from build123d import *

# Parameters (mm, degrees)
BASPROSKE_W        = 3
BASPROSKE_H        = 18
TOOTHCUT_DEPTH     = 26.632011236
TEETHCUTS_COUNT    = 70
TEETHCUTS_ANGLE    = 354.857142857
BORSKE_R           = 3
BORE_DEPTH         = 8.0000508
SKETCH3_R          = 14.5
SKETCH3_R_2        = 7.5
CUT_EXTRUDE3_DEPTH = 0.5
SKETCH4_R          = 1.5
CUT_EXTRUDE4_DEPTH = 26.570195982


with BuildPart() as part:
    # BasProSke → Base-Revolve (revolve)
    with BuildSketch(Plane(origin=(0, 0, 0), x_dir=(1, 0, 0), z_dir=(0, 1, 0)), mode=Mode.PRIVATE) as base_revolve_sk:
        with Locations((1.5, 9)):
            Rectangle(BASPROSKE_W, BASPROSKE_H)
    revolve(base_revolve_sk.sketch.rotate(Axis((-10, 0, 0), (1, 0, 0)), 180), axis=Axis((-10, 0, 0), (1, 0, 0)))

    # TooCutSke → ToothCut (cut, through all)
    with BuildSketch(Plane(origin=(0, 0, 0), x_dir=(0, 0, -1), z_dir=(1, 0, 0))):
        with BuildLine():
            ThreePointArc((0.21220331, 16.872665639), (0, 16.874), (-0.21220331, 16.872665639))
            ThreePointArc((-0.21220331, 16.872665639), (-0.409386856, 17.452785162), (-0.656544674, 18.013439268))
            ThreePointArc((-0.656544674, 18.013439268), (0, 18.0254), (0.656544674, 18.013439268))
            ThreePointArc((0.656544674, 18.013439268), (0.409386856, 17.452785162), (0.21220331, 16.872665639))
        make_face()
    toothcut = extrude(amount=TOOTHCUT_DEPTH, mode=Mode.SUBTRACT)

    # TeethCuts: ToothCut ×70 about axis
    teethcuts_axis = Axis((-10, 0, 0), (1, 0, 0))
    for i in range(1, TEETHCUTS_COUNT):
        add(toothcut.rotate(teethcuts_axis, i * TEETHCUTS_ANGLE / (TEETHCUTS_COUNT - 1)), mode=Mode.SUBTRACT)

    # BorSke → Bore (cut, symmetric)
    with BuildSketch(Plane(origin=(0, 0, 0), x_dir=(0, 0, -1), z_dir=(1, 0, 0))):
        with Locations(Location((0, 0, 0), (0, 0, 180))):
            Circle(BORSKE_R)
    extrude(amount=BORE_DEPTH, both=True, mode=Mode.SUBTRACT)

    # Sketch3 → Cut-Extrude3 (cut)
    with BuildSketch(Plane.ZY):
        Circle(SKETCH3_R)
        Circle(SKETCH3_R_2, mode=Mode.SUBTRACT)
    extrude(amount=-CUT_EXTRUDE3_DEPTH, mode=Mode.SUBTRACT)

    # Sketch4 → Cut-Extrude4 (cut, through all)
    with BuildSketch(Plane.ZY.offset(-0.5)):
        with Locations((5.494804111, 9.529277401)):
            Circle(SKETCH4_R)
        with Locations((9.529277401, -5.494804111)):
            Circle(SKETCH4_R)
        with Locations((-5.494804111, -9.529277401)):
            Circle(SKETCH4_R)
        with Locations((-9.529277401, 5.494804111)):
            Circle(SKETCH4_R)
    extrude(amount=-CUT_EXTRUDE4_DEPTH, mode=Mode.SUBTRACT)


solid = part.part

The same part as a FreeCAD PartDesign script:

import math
import FreeCAD as App
import Part
import Sketcher
Q = App.Units.Quantity


def add_polygon(sketch, points):
    """Adds a closed chain of lines whose ends are joined by coincident constraints."""
    first, n = sketch.GeometryCount, len(points)
    for a, b in zip(points, points[1:] + points[:1]):
        sketch.addGeometry(Part.LineSegment(App.Vector(*a, 0), App.Vector(*b, 0)), False)
    for i in range(n):
        sketch.addConstraint(Sketcher.Constraint("Coincident", first + i, 2, first + (i + 1) % n, 1))

doc = App.newDocument("Part")
body = doc.addObject("PartDesign::Body", "Body")

sketch1 = body.newObject("Sketcher::SketchObject", "Sketch")
sketch1.AttachmentSupport = (doc.getObject("XZ_Plane"), [""])
sketch1.MapMode = "FlatFace"
add_polygon(sketch1, [(0, -18), (0, 0), (3, 0), (3, -18)])
sketch1.addConstraint([
    Sketcher.Constraint("Vertical", 0),
    Sketcher.Constraint("Horizontal", 1),
    Sketcher.Constraint("Vertical", 2),
    Sketcher.Constraint("Horizontal", 3),
    Sketcher.Constraint("Coincident", 0, 2, -1, 1),
    Sketcher.Constraint("DistanceX", 1, 1, 1, 2, Q("3 mm")),
    Sketcher.Constraint("DistanceY", 0, 1, 0, 2, Q("18 mm")),
])
revolution = body.newObject("PartDesign::Revolution", "Revolution")
revolution.Profile = sketch1
revolution.ReferenceAxis = (sketch1, ["H_Axis"])
revolution.Angle = 360

sketch2 = body.newObject("Sketcher::SketchObject", "Sketch001")
sketch2.AttachmentSupport = (doc.getObject("YZ_Plane"), [""])
sketch2.MapMode = "FlatFace"
sketch2.addGeometry([
    Part.ArcOfCircle(Part.Circle(App.Vector(-0.000004, 0, 0), App.Vector(0, 0, 1), 16.874004), math.radians(-0.720557), math.radians(0.720557)),
    Part.ArcOfCircle(Part.Circle(App.Vector(14.912149, -6.932053, 0), App.Vector(0, 0, 1), 7), math.radians(63.701904), math.radians(73.735394)),
    Part.ArcOfCircle(Part.Circle(App.Vector(0, 0, 0), App.Vector(0, 0, 1), 18.0254), math.radians(-2.087363), math.radians(2.087363)),
    Part.ArcOfCircle(Part.Circle(App.Vector(14.912149, 6.932053, 0), App.Vector(0, 0, 1), 7), math.radians(-73.735394), math.radians(-63.701904)),
], False)
sketch2.addConstraint([
    Sketcher.Constraint("Coincident", 0, 1, 1, 2),
    Sketcher.Constraint("Coincident", 1, 1, 2, 1),
    Sketcher.Constraint("Coincident", 2, 2, 3, 2),
    Sketcher.Constraint("Coincident", 3, 1, 0, 2),
    Sketcher.Constraint("Coincident", 0, 3, -1, 1),
    Sketcher.Constraint("Coincident", 2, 3, -1, 1),
    Sketcher.Constraint("Equal", 1, 3),
    Sketcher.Constraint("Symmetric", 1, 3, 3, 3, -1),
    Sketcher.Constraint("Radius", 1, Q("7 mm")),
    Sketcher.Constraint("Radius", 2, Q("18.0254 mm")),
    Sketcher.Constraint("Radius", 0, Q("16.874004 mm")),
    Sketcher.Constraint("DistanceX", -1, 1, 1, 3, Q("14.912149 mm")),
    Sketcher.Constraint("DistanceX", -1, 1, 1, 1, Q("18.013439 mm")),
])
pocket1 = body.newObject("PartDesign::Pocket", "Pocket")
pocket1.Profile = sketch2
pocket1.Type = "ThroughAll"
pocket1.Reversed = True
doc.recompute()

polarpattern = body.newObject("PartDesign::PolarPattern", "PolarPattern")
polarpattern.Originals = [pocket1]
polarpattern.Axis = (doc.getObject("X_Axis"), [""])
polarpattern.Angle = 360
polarpattern.Occurrences = 70
body.Tip = polarpattern

sketch3 = body.newObject("Sketcher::SketchObject", "Sketch002")
sketch3.AttachmentSupport = (doc.getObject("YZ_Plane"), [""])
sketch3.MapMode = "FlatFace"
sketch3.addGeometry(Part.Circle(App.Vector(0, 0, 0), App.Vector(0, 0, 1), 3), False)
sketch3.addConstraint([
    Sketcher.Constraint("Coincident", 0, 3, -1, 1),
    Sketcher.Constraint("Diameter", 0, Q("6 mm")),
])
pocket2 = body.newObject("PartDesign::Pocket", "Pocket001")
pocket2.Profile = sketch3
pocket2.Length = 16.000102
pocket2.Midplane = True

sketch4 = body.newObject("Sketcher::SketchObject", "Sketch003")
sketch4.AttachmentSupport = (doc.getObject("YZ_Plane"), [""])
sketch4.MapMode = "FlatFace"
sketch4.addGeometry([
    Part.Circle(App.Vector(0, 0, 0), App.Vector(0, 0, 1), 14.5),
    Part.Circle(App.Vector(0, 0, 0), App.Vector(0, 0, 1), 7.5),
], False)
sketch4.addConstraint([
    Sketcher.Constraint("Coincident", 0, 3, -1, 1),
    Sketcher.Constraint("Coincident", 1, 3, -1, 1),
    Sketcher.Constraint("Diameter", 0, Q("29 mm")),
    Sketcher.Constraint("Diameter", 1, Q("15 mm")),
])
pocket3 = body.newObject("PartDesign::Pocket", "Pocket002")
pocket3.Profile = sketch4
pocket3.Length = 0.5
pocket3.Reversed = True

sketch5 = body.newObject("Sketcher::SketchObject", "Sketch004")
sketch5.AttachmentSupport = (doc.getObject("YZ_Plane"), [""])
sketch5.MapMode = "FlatFace"
sketch5.AttachmentOffset = App.Placement(App.Vector(0, 0, 0.5), App.Rotation())
sketch5.addGeometry([
    Part.Circle(App.Vector(9.529277, 5.494804, 0), App.Vector(0, 0, 1), 1.5),
    Part.Circle(App.Vector(-5.494804, 9.529277, 0), App.Vector(0, 0, 1), 1.5),
    Part.Circle(App.Vector(-9.529277, -5.494804, 0), App.Vector(0, 0, 1), 1.5),
    Part.Circle(App.Vector(5.494804, -9.529277, 0), App.Vector(0, 0, 1), 1.5),
], False)
sketch5.addConstraint([
    Sketcher.Constraint("Equal", 0, 1),
    Sketcher.Constraint("Equal", 1, 2),
    Sketcher.Constraint("Equal", 2, 3),
    Sketcher.Constraint("Symmetric", 0, 3, 2, 3, -1, 1),
    Sketcher.Constraint("Symmetric", 1, 3, 3, 3, -1, 1),
    Sketcher.Constraint("Diameter", 0, Q("3 mm")),
    Sketcher.Constraint("DistanceX", 1, 3, 0, 3, Q("15.024082 mm")),
    Sketcher.Constraint("DistanceY", 2, 3, 1, 3, Q("15.024082 mm")),
    Sketcher.Constraint("DistanceY", 2, 3, 0, 3, Q("10.989608 mm")),
    Sketcher.Constraint("DistanceX", 1, 3, 3, 3, Q("10.989608 mm")),
])
pocket4 = body.newObject("PartDesign::Pocket", "Pocket003")
pocket4.Profile = sketch5
pocket4.Type = "ThroughAll"
pocket4.Reversed = True

doc.recompute()
